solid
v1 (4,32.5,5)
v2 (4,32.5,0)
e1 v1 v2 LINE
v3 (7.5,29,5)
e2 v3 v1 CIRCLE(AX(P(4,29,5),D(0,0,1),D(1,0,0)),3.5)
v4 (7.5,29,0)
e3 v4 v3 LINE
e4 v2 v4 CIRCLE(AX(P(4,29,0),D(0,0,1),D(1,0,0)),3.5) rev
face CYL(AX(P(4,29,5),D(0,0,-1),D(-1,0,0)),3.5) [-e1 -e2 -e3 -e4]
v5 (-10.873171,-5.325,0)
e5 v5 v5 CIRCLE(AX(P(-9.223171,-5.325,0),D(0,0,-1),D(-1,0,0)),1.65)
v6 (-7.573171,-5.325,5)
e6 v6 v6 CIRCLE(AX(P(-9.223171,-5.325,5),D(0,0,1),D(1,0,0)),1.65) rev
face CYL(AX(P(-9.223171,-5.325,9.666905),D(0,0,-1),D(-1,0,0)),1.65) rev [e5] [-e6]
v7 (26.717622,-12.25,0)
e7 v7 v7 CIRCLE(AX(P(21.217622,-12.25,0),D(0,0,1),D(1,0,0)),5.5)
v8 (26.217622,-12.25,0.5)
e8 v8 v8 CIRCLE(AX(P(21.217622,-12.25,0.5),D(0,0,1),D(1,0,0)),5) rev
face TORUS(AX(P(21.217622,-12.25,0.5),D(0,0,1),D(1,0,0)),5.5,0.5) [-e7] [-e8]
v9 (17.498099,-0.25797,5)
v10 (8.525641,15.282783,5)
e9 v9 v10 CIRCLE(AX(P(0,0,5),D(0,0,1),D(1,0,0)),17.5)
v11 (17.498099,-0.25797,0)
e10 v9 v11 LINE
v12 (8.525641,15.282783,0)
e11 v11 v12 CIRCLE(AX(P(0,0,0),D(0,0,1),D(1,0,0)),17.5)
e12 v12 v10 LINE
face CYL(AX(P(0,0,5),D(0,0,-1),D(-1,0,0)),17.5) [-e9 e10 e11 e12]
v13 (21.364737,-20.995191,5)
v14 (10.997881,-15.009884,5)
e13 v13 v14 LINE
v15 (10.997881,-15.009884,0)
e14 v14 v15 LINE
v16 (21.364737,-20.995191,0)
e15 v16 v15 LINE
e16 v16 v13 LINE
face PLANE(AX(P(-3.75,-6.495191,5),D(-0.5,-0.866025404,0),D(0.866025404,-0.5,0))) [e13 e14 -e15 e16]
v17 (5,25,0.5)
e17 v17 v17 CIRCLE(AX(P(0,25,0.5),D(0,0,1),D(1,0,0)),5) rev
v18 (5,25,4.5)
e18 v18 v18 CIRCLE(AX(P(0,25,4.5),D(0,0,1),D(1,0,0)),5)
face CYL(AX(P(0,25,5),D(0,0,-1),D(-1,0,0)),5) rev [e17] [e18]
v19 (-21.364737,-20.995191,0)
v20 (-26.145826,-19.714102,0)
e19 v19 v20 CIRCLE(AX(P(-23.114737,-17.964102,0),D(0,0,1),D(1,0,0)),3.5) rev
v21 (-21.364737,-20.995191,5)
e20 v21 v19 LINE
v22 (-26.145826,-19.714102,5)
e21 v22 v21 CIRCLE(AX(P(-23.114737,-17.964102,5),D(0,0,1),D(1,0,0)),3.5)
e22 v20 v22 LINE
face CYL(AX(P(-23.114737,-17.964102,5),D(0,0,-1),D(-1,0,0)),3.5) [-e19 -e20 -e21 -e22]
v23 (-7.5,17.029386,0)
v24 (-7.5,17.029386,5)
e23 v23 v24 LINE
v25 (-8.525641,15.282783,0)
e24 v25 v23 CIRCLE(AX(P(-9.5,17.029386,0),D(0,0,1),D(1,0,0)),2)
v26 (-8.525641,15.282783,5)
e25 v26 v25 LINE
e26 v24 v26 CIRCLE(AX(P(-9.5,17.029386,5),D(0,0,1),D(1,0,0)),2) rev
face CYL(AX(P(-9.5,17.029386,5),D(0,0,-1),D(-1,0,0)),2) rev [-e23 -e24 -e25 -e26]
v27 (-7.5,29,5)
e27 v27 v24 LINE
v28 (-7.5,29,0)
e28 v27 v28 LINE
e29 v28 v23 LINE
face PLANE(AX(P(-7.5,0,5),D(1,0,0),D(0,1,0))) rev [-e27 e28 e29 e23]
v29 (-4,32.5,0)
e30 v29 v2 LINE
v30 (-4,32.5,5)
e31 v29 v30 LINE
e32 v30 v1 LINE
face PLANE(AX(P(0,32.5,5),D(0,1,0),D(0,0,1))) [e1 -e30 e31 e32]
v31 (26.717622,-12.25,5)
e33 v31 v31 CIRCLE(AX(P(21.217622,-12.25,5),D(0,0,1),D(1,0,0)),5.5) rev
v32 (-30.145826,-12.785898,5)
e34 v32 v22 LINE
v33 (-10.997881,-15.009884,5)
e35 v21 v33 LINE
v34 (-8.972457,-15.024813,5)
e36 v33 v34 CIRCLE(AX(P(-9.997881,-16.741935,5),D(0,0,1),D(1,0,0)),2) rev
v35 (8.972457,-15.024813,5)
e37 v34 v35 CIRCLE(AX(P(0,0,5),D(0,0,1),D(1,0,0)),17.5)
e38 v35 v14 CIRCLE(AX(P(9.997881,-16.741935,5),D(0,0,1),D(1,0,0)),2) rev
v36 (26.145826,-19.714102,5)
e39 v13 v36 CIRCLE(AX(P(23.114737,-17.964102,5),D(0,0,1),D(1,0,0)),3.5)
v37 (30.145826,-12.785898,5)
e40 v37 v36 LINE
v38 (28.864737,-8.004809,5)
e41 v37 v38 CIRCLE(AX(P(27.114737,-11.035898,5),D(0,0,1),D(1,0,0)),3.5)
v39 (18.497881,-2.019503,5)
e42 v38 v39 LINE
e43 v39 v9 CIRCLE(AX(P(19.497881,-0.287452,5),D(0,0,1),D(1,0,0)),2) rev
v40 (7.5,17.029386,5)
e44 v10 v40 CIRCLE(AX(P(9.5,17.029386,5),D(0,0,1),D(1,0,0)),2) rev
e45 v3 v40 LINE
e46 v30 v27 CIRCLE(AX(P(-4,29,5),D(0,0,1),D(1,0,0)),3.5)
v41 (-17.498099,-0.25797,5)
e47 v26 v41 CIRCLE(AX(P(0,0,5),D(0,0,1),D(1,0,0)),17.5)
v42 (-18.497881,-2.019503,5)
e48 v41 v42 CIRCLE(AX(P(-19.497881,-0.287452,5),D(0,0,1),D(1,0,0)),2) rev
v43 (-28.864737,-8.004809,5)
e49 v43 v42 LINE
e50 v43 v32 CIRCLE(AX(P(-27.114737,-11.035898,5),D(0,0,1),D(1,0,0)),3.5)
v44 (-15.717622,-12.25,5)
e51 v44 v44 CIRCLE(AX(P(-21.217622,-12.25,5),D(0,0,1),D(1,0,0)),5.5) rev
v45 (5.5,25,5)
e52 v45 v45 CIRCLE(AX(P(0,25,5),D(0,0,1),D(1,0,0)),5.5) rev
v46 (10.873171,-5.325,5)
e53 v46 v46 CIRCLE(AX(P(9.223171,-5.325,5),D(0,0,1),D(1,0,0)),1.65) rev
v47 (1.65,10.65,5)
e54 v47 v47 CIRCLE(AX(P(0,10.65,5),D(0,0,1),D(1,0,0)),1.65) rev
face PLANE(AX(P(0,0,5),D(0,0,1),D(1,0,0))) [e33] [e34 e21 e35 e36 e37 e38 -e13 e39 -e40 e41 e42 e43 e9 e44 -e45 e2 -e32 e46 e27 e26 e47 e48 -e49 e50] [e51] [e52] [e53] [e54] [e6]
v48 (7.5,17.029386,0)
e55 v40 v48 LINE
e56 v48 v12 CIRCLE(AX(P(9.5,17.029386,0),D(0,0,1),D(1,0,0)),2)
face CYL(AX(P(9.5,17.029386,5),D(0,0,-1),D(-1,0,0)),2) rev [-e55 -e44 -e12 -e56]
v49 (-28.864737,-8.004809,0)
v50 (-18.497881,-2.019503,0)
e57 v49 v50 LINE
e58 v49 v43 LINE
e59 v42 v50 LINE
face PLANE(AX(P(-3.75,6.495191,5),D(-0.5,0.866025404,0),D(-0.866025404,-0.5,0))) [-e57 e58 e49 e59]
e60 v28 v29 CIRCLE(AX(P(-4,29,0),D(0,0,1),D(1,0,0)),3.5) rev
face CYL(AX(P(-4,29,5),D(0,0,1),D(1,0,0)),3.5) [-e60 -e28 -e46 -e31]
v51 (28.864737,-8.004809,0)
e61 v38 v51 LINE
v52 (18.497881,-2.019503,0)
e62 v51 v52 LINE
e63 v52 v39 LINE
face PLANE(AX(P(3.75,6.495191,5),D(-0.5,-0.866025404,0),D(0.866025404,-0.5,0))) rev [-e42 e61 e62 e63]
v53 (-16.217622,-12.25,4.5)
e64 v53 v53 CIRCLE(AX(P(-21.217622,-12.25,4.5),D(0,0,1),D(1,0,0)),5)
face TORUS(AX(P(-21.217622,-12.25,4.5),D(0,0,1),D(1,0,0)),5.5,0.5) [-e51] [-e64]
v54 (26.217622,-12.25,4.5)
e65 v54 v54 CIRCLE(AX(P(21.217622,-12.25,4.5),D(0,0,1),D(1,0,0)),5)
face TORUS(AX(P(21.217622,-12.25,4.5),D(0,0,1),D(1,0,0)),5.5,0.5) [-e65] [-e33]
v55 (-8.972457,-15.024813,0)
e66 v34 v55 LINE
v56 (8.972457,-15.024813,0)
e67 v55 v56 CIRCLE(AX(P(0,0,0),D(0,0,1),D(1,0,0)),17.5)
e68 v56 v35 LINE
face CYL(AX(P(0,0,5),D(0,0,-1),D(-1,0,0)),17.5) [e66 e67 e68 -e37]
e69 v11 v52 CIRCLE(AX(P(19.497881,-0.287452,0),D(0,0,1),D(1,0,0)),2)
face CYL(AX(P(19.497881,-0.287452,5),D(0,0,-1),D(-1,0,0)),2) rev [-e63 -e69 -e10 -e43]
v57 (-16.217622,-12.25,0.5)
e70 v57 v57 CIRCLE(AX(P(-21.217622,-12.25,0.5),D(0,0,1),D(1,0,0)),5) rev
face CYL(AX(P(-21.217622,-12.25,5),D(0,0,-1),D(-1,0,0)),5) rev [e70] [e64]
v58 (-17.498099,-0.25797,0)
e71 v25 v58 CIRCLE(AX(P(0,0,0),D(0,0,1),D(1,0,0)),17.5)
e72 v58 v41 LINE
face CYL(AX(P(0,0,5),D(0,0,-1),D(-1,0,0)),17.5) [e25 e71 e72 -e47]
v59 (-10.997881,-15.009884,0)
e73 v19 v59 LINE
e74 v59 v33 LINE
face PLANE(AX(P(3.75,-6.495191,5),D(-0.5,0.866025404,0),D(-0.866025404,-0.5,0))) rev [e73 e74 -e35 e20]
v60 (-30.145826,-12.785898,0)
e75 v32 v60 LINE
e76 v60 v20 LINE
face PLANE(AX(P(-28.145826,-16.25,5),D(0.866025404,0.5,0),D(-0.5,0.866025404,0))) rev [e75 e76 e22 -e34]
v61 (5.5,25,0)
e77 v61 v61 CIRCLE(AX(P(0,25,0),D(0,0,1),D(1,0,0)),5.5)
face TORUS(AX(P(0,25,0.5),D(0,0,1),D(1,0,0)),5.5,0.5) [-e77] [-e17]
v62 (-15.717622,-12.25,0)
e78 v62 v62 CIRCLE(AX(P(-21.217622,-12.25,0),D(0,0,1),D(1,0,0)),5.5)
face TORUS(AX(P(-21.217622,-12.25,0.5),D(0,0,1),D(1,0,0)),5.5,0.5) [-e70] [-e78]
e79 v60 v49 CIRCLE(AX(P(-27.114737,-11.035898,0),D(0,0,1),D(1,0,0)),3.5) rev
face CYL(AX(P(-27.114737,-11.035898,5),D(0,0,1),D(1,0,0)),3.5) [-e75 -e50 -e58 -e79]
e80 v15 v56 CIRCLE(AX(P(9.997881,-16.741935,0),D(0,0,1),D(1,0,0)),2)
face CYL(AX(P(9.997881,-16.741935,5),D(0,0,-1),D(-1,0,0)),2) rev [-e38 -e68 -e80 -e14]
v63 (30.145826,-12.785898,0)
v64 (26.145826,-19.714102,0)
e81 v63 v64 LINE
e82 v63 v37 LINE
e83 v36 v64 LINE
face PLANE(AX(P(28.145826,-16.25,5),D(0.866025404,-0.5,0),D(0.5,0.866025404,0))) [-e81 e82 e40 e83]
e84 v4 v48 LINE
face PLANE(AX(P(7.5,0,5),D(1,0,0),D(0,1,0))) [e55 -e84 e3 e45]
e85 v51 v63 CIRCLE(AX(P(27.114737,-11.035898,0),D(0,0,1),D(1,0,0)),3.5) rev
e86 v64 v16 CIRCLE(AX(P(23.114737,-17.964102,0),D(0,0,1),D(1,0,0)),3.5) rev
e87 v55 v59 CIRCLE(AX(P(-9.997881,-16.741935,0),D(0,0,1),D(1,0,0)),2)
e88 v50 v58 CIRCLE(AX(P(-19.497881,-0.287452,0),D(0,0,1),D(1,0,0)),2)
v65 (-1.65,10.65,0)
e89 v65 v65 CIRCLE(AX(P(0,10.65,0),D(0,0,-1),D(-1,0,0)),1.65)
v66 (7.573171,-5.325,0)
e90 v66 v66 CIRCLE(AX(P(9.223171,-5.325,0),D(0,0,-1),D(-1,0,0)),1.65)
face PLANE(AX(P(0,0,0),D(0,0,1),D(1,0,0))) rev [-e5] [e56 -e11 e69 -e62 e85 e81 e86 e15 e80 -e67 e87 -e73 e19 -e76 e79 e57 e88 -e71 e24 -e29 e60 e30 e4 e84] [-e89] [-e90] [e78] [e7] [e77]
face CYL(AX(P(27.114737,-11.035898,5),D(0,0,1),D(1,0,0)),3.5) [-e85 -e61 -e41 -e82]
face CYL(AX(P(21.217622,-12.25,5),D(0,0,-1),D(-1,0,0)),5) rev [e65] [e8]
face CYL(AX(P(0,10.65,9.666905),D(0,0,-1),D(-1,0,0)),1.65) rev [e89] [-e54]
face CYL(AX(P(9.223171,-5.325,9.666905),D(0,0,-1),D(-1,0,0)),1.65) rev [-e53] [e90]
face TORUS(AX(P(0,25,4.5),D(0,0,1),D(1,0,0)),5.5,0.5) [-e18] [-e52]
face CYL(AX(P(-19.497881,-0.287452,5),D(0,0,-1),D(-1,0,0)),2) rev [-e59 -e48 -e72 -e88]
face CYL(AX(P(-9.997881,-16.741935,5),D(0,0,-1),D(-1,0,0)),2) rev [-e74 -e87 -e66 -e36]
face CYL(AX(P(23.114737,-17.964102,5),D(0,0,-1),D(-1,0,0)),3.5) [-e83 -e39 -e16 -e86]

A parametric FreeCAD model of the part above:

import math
import FreeCAD as App
import Part
import Sketcher
from FreeCAD import Vector
Q = App.Units.Quantity


def edges_at(feature, points):
    """Names of the edges that pass closest to the given points."""
    edges = feature.Shape.Edges
    near = lambda p: min(range(len(edges)), key=lambda i: edges[i].distToShape(Part.Vertex(*p))[0])
    return sorted({f"Edge{near(p) + 1}" for p in points})

doc = App.newDocument("Part")
body = doc.addObject("PartDesign::Body", "Body")

# Sketch on XY plane
sketch1 = body.newObject("Sketcher::SketchObject", "Sketch")
sketch1.AttachmentSupport = (doc.getObject("XY_Plane"), [""])
sketch1.MapMode = "FlatFace"
sketch1.addGeometry([
    Part.LineSegment(Vector(-24, -23, 0), Vector(-10, -14, 0)),  # 0
    Part.ArcOfCircle(Part.Circle(Vector(0, 0, 0), Vector(0, 0, 1), 18), math.radians(-125), math.radians(-55)),  # 1
    Part.LineSegment(Vector(10, -14, 0), Vector(24, -23, 0)),  # 2
    Part.LineSegment(Vector(24, -23, 0), Vector(32, -10, 0)),  # 3
    Part.LineSegment(Vector(32, -10, 0), Vector(17, -1, 0)),  # 4
    Part.ArcOfCircle(Part.Circle(Vector(0, 0, 0), Vector(0, 0, 1), 18), math.radians(-5), math.radians(65)),  # 5
    Part.LineSegment(Vector(8, 16, 0), Vector(8, 32, 0)),  # 6
    Part.LineSegment(Vector(8, 32, 0), Vector(-8, 32, 0)),  # 7
    Part.LineSegment(Vector(-8, 32, 0), Vector(-8, 16, 0)),  # 8
    Part.ArcOfCircle(Part.Circle(Vector(0, 0, 0), Vector(0, 0, 1), 18), math.radians(115), math.radians(185)),  # 9
    Part.LineSegment(Vector(-17, -1, 0), Vector(-32, -10, 0)),  # 10
    Part.LineSegment(Vector(-32, -10, 0), Vector(-24, -23, 0)),  # 11
    Part.Circle(Vector(-21, -12, 0), Vector(0, 0, 1), 5),  # 12
    Part.Circle(Vector(0, 25, 0), Vector(0, 0, 1), 5),  # 13
    Part.Circle(Vector(21, -12, 0), Vector(0, 0, 1), 5),  # 14
], False)
sketch1.addConstraint([
    Sketcher.Constraint("Coincident", 0, 2, 1, 1),
    Sketcher.Constraint("Coincident", 1, 2, 2, 1),
    Sketcher.Constraint("Coincident", 2, 2, 3, 1),
    Sketcher.Constraint("Coincident", 3, 2, 4, 1),
    Sketcher.Constraint("Coincident", 4, 2, 5, 1),
    Sketcher.Constraint("Coincident", 5, 2, 6, 1),
    Sketcher.Constraint("Coincident", 6, 2, 7, 1),
    Sketcher.Constraint("Coincident", 7, 2, 8, 1),
    Sketcher.Constraint("Coincident", 8, 2, 9, 1),
    Sketcher.Constraint("Coincident", 9, 2, 10, 1),
    Sketcher.Constraint("Coincident", 10, 2, 11, 1),
    Sketcher.Constraint("Coincident", 11, 2, 0, 1),
    Sketcher.Constraint("Vertical", 6),
    Sketcher.Constraint("Horizontal", 7),
    Sketcher.Constraint("Vertical", 8),
    Sketcher.Constraint("Coincident", 1, 3, -1, 1),
    Sketcher.Constraint("Coincident", 5, 3, -1, 1),
    Sketcher.Constraint("Coincident", 9, 3, -1, 1),
    Sketcher.Constraint("Equal", 1, 5),
    Sketcher.Constraint("Equal", 5, 9),
    Sketcher.Constraint("Equal", 12, 13),
    Sketcher.Constraint("Equal", 13, 14),
    Sketcher.Constraint("Symmetric", 12, 3, 14, 3, -2),
    Sketcher.Constraint("Symmetric", 3, 2, 10, 2, -2),
    Sketcher.Constraint("Symmetric", 2, 2, 11, 2, -2),
    Sketcher.Constraint("PointOnObject", 13, 3, -2),
    Sketcher.Constraint("Perpendicular", 2, 3),
    Sketcher.Constraint("Perpendicular", 3, 4),
    Sketcher.Constraint("Parallel", 0, 10),
    Sketcher.Constraint("Perpendicular", 10, 11),
    Sketcher.Constraint("Horizontal", 5, 2, 8, 2),
    Sketcher.Constraint("Equal", 2, 4),
    Sketcher.Constraint("Diameter", 12, 10.0),
    Sketcher.Constraint("Radius", 1, 17.5),
    Sketcher.Constraint("DistanceX", 7, 2, 7, 1, 15.0),
    Sketcher.Constraint("Angle", 0, Q("30 deg")),
    Sketcher.Constraint("Distance", 3, 15.0),
    Sketcher.Constraint("DistanceY", -1, 1, 13, 3, 25.0),
    Sketcher.Constraint("DistanceY", -1, 1, 6, 2, 32.5),
    Sketcher.Constraint("DistanceY", 12, 3, -1, 1, 12.25),
    Sketcher.Constraint("Distance", 0, 16.688612),
    Sketcher.Constraint("DistanceX", 12, 3, 0, 2, 11.274558),
])
pad1 = body.newObject("PartDesign::Pad", "Pad")
pad1.Profile = sketch1
pad1.Length = 5
doc.recompute()

fillet = body.newObject("PartDesign::Fillet", "Fillet")
fillet.Base = (pad1, edges_at(pad1, [
    (-24.396, -22.745, 2.5),
    (-31.896, -9.755, 2.5),
    (-7.5, 32.5, 2.5),
    (7.5, 32.5, 2.5),
    (31.896, -9.755, 2.5),
    (24.396, -22.745, 2.5),
]))
fillet.Radius = 3.5
doc.recompute()

fillet2 = body.newObject("PartDesign::Fillet", "Fillet001")
fillet2.Base = (fillet, edges_at(fillet, [
    (-17.443, -1.411, 2.5),
    (-7.5, 15.811, 2.5),
    (7.5, 15.811, 2.5),
    (17.443, -1.411, 2.5),
    (9.943, -14.401, 2.5),
    (-9.943, -14.401, 2.5),
]))
fillet2.Radius = 2
doc.recompute()

fillet3 = body.newObject("PartDesign::Fillet", "Fillet002")
fillet3.Base = (fillet2, edges_at(fillet2, [
    (16.218, -12.25, 0),
    (-5, 25, 0),
    (-26.218, -12.25, 0),
    (-26.218, -12.25, 5),
    (-5, 25, 5),
    (16.218, -12.25, 5),
]))
fillet3.Radius = 0.5

# Sketch on XY plane
sketch2 = body.newObject("Sketcher::SketchObject", "Sketch001")
sketch2.AttachmentSupport = (doc.getObject("XY_Plane"), [""])
sketch2.MapMode = "FlatFace"
sketch2.addGeometry([
    Part.Circle(Vector(9.2, -5.3, 0), Vector(0, 0, 1), 1.6),
    Part.Circle(Vector(-9.2, -5.3, 0), Vector(0, 0, 1), 1.6),
    Part.Circle(Vector(0, 10.7, 0), Vector(0, 0, 1), 1.6),
], False)
sketch2.addConstraint([
    Sketcher.Constraint("Equal", 0, 1),
    Sketcher.Constraint("Equal", 1, 2),
    Sketcher.Constraint("Symmetric", 0, 3, 1, 3, -2),
    Sketcher.Constraint("PointOnObject", 2, 3, -2),
    Sketcher.Constraint("Diameter", 0, 3.3),
    Sketcher.Constraint("DistanceY", -1, 1, 2, 3, 10.65),
    Sketcher.Constraint("DistanceY", 0, 3, -1, 1, 5.325),
    Sketcher.Constraint("DistanceX", -1, 1, 0, 3, 9.223171),
])
pocket1 = body.newObject("PartDesign::Pocket", "Pocket")
pocket1.Profile = sketch2
pocket1.Length = 5
pocket1.Reversed = True

doc.recompute()
